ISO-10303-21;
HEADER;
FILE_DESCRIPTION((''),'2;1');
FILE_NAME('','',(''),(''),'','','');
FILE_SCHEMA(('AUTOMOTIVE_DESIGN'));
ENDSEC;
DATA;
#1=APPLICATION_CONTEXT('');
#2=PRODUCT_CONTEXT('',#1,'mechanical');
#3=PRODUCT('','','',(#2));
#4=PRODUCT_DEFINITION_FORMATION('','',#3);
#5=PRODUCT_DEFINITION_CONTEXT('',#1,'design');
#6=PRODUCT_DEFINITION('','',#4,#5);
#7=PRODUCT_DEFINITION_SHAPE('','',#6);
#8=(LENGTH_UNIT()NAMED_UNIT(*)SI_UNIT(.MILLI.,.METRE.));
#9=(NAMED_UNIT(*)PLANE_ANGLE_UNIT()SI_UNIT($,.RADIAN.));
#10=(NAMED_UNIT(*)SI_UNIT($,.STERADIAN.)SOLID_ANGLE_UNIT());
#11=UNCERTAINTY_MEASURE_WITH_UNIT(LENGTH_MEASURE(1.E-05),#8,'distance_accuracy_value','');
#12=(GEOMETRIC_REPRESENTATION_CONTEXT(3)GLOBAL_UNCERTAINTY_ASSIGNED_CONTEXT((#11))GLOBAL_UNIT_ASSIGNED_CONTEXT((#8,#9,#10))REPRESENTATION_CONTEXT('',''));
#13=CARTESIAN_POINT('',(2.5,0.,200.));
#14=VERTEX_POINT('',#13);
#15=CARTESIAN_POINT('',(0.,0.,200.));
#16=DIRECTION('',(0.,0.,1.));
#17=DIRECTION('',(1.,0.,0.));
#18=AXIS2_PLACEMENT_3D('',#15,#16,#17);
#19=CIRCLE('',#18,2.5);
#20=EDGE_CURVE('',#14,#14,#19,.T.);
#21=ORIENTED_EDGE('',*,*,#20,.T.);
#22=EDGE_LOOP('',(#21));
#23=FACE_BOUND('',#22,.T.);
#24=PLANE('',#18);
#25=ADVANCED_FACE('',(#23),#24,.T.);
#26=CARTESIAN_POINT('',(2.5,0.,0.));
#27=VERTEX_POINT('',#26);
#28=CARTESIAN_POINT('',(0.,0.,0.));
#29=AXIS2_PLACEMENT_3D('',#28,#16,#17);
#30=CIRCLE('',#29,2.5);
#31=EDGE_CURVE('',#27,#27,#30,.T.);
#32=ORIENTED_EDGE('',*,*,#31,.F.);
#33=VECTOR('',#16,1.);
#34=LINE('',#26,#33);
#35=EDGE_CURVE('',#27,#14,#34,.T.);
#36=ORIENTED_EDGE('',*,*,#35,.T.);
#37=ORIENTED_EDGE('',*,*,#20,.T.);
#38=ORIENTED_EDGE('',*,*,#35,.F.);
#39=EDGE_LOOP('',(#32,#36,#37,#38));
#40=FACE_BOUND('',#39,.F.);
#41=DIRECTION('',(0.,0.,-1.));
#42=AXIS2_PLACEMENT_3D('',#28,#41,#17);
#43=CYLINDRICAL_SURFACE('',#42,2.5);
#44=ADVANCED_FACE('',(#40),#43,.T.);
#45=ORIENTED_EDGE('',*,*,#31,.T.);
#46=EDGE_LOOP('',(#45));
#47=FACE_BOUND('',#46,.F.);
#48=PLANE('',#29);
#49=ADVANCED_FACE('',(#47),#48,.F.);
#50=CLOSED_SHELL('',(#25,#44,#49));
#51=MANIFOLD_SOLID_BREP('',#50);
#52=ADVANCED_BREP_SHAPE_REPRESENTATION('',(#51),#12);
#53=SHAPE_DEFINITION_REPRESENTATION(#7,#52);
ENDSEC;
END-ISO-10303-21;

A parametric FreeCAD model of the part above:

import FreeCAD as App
import Part
import Sketcher

doc = App.newDocument("Part")
body = doc.addObject("PartDesign::Body", "Body")

sketch1 = doc.addObject("Sketcher::SketchObject", "Sketch")
body.addObject(sketch1)
sketch1.AttachmentSupport = (doc.XY_Plane, [""])
sketch1.MapMode = "FlatFace"
sketch1.addGeometry(Part.Circle(App.Vector(0, 0, 0), App.Vector(0, 0, 1), 2.5), False)
sketch1.addConstraint([
    Sketcher.Constraint("Coincident", 0, 3, -1, 1),
    Sketcher.Constraint("Diameter", 0, 5.0),
])
pad1 = doc.addObject("PartDesign::Pad", "Pad")
body.addObject(pad1)
pad1.Profile = sketch1
pad1.Length = 200

doc.recompute()
